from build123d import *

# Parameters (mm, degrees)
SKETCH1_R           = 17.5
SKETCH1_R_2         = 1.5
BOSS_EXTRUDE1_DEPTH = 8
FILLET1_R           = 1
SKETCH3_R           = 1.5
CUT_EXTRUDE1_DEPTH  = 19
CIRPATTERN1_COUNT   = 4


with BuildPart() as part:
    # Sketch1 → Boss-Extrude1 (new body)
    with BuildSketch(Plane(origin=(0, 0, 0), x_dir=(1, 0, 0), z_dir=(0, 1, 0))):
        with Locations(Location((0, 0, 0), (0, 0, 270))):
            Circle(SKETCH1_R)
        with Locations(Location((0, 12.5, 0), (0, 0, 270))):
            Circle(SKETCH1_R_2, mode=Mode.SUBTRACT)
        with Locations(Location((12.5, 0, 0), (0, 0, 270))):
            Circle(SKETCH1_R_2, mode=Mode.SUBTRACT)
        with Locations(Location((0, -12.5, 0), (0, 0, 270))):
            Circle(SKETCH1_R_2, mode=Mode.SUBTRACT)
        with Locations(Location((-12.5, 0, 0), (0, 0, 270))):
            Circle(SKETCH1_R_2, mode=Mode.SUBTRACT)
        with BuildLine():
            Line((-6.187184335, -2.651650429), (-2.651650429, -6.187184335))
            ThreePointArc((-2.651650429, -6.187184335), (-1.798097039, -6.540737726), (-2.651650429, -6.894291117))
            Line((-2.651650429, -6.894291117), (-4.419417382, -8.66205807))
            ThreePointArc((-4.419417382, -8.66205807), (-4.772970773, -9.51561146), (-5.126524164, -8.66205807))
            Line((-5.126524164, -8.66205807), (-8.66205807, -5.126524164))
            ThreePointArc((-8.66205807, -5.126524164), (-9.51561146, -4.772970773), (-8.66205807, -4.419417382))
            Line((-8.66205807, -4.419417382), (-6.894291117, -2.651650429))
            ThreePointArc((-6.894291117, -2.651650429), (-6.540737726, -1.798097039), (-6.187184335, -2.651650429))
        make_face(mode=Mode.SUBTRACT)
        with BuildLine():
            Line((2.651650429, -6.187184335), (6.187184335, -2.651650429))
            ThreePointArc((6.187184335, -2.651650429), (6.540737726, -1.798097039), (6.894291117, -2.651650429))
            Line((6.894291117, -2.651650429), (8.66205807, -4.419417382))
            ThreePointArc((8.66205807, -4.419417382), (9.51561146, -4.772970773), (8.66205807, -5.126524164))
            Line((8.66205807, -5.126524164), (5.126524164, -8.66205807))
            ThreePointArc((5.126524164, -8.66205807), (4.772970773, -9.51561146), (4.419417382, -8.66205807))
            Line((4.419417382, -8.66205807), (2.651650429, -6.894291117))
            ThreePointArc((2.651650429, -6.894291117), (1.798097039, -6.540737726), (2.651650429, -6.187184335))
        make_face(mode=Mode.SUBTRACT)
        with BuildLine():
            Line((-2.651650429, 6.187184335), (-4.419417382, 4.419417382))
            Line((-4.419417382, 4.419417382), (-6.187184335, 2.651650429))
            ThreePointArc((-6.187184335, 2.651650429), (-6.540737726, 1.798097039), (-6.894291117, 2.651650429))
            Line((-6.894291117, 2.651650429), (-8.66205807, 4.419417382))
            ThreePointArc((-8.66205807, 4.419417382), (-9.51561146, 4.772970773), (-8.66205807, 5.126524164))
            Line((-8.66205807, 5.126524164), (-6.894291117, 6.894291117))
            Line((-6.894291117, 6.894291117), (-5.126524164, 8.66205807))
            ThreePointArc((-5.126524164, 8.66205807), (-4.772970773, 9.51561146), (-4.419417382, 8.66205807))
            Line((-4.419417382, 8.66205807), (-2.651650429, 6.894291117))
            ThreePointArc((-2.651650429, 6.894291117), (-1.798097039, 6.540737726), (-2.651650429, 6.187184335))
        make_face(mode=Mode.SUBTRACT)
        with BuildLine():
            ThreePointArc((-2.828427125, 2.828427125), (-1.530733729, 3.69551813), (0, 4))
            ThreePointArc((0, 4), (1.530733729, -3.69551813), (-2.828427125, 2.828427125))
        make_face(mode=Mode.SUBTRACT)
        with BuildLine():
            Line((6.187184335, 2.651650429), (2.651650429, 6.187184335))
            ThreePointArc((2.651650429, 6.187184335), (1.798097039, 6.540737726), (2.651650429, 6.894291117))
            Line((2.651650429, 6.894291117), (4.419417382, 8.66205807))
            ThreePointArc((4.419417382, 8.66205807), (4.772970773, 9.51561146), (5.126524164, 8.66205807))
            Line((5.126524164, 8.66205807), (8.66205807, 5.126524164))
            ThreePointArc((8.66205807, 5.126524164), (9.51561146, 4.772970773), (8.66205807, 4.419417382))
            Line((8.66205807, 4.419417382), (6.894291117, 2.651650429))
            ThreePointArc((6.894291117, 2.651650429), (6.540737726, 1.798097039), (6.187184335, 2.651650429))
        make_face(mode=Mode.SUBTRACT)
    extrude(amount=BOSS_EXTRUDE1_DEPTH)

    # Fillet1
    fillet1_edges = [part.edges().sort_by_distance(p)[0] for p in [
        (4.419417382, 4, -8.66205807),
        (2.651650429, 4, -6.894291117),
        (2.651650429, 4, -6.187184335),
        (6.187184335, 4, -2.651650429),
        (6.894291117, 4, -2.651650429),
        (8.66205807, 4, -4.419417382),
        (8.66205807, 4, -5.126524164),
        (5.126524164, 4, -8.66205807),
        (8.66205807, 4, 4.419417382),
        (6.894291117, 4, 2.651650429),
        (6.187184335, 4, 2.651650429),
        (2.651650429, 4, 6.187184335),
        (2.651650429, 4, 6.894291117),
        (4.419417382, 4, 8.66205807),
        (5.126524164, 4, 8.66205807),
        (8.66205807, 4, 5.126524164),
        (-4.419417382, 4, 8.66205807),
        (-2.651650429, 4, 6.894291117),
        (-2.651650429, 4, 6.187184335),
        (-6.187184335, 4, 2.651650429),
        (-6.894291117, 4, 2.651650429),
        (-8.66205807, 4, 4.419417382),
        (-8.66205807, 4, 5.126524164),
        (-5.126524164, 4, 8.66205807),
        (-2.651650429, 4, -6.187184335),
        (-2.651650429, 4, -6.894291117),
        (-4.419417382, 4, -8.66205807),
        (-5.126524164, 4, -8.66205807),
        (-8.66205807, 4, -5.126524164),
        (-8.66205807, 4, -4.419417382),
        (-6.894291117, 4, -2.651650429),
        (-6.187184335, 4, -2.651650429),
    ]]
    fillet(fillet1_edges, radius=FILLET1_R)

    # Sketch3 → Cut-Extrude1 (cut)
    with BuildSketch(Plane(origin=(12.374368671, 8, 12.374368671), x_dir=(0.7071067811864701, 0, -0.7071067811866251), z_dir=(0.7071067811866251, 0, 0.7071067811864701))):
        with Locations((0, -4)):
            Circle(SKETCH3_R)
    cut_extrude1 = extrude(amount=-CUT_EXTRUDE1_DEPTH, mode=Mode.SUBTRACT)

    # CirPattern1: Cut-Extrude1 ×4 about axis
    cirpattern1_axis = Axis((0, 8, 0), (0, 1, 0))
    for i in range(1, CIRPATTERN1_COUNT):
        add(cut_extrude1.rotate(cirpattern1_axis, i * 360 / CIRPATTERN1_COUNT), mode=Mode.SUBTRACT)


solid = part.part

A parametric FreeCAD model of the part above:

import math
import FreeCAD as App
import Part
import Sketcher
from FreeCAD import Vector


def edges_at(feature, points):
    """Names of the edges that pass closest to the given points."""
    edges = feature.Shape.Edges
    near = lambda p: min(range(len(edges)), key=lambda i: edges[i].distToShape(Part.Vertex(*p))[0])
    return sorted({f"Edge{near(p) + 1}" for p in points})

doc = App.newDocument("Part")
params = doc.addObject("Spreadsheet::Sheet", "Params")
for row, (alias, value) in enumerate([
    ("sketch1_diameter", "35 mm"),
    ("sketch1_diameter2", "3 mm"),
    ("sketch1_radius", "4 mm"),
    ("sketch1_radius2", "0.5 mm"),
    ("sketch1_length", "5 mm"),
    ("pad1_length", "8 mm"),
    ("fillet_radius", "1 mm"),
    ("sketch2_diameter", "3 mm"),
    ("pocket1_length", "19 mm"),
], start=1):
    params.set(f"A{row}", alias)
    params.set(f"B{row}", "=" + value)
    params.setAlias(f"B{row}", alias)

body = doc.addObject("PartDesign::Body", "Body")

# Sketch on XZ plane
sketch1 = body.newObject("Sketcher::SketchObject", "Sketch")
sketch1.AttachmentSupport = (doc.getObject("XZ_Plane"), [""])
sketch1.MapMode = "FlatFace"
sketch1.addGeometry([
    Part.Circle(Vector(0, 0, 0), Vector(0, 0, 1), 17.5),  # 0
    Part.Circle(Vector(0, -12.5, 0), Vector(0, 0, 1), 1.5),  # 1
    Part.ArcOfCircle(Part.Circle(Vector(-2.3, -6.5, 0), Vector(0, 0, 1), 0.5), math.radians(-135), math.radians(135)),  # 2
    Part.LineSegment(Vector(-2.7, -6.2, 0), Vector(-6.2, -2.7, 0)),  # 3
    Part.ArcOfCircle(Part.Circle(Vector(-6.5, -2.3, 0), Vector(0, 0, 1), 0.5), math.radians(-45), math.radians(225)),  # 4
    Part.LineSegment(Vector(-6.9, -2.7, 0), Vector(-8.7, -4.4, 0)),  # 5
    Part.ArcOfCircle(Part.Circle(Vector(-9, -4.8, 0), Vector(0, 0, 1), 0.5), math.radians(45), math.radians(315)),  # 6
    Part.LineSegment(Vector(-8.7, -5.1, 0), Vector(-5.1, -8.7, 0)),  # 7
    Part.ArcOfCircle(Part.Circle(Vector(-4.8, -9, 0), Vector(0, 0, 1), 0.5), math.radians(135), math.radians(405)),  # 8
    Part.LineSegment(Vector(-4.4, -8.7, 0), Vector(-2.7, -6.9, 0)),  # 9
    Part.ArcOfCircle(Part.Circle(Vector(0, 0, 0), Vector(0, 0, 1), 4), math.radians(-90), math.radians(225)),  # 10
    Part.ArcOfCircle(Part.Circle(Vector(0, 0, 0), Vector(0, 0, 1), 4), math.radians(-135), math.radians(-90)),  # 11
    Part.Circle(Vector(-12.5, 0, 0), Vector(0, 0, 1), 1.5),  # 12
    Part.ArcOfCircle(Part.Circle(Vector(-6.5, 2.3, 0), Vector(0, 0, 1), 0.5), math.radians(135), math.radians(405)),  # 13
    Part.LineSegment(Vector(-6.2, 2.7, 0), Vector(-2.7, 6.2, 0)),  # 14
    Part.ArcOfCircle(Part.Circle(Vector(-2.3, 6.5, 0), Vector(0, 0, 1), 0.5), math.radians(-135), math.radians(135)),  # 15
    Part.LineSegment(Vector(-2.7, 6.9, 0), Vector(-4.4, 8.7, 0)),  # 16
    Part.ArcOfCircle(Part.Circle(Vector(-4.8, 9, 0), Vector(0, 0, 1), 0.5), math.radians(-45), math.radians(225)),  # 17
    Part.LineSegment(Vector(-5.1, 8.7, 0), Vector(-8.7, 5.1, 0)),  # 18
    Part.ArcOfCircle(Part.Circle(Vector(-9, 4.8, 0), Vector(0, 0, 1), 0.5), math.radians(45), math.radians(315)),  # 19
    Part.LineSegment(Vector(-8.7, 4.4, 0), Vector(-6.9, 2.7, 0)),  # 20
    Part.ArcOfCircle(Part.Circle(Vector(6.5, -2.3, 0), Vector(0, 0, 1), 0.5), math.radians(-45), math.radians(225)),  # 21
    Part.LineSegment(Vector(6.2, -2.7, 0), Vector(2.7, -6.2, 0)),  # 22
    Part.ArcOfCircle(Part.Circle(Vector(2.3, -6.5, 0), Vector(0, 0, 1), 0.5), math.radians(45), math.radians(315)),  # 23
    Part.LineSegment(Vector(2.7, -6.9, 0), Vector(4.4, -8.7, 0)),  # 24
    Part.ArcOfCircle(Part.Circle(Vector(4.8, -9, 0), Vector(0, 0, 1), 0.5), math.radians(135), math.radians(405)),  # 25
    Part.LineSegment(Vector(5.1, -8.7, 0), Vector(8.7, -5.1, 0)),  # 26
    Part.ArcOfCircle(Part.Circle(Vector(9, -4.8, 0), Vector(0, 0, 1), 0.5), math.radians(-135), math.radians(135)),  # 27
    Part.LineSegment(Vector(8.7, -4.4, 0), Vector(6.9, -2.7, 0)),  # 28
    Part.Circle(Vector(12.5, 0, 0), Vector(0, 0, 1), 1.5),  # 29
    Part.ArcOfCircle(Part.Circle(Vector(2.3, 6.5, 0), Vector(0, 0, 1), 0.5), math.radians(45), math.radians(315)),  # 30
    Part.LineSegment(Vector(2.7, 6.2, 0), Vector(6.2, 2.7, 0)),  # 31
    Part.ArcOfCircle(Part.Circle(Vector(6.5, 2.3, 0), Vector(0, 0, 1), 0.5), math.radians(135), math.radians(405)),  # 32
    Part.LineSegment(Vector(6.9, 2.7, 0), Vector(8.7, 4.4, 0)),  # 33
    Part.ArcOfCircle(Part.Circle(Vector(9, 4.8, 0), Vector(0, 0, 1), 0.5), math.radians(-135), math.radians(135)),  # 34
    Part.LineSegment(Vector(8.7, 5.1, 0), Vector(5.1, 8.7, 0)),  # 35
    Part.ArcOfCircle(Part.Circle(Vector(4.8, 9, 0), Vector(0, 0, 1), 0.5), math.radians(-45), math.radians(225)),  # 36
    Part.LineSegment(Vector(4.4, 8.7, 0), Vector(2.7, 6.9, 0)),  # 37
    Part.Circle(Vector(0, 12.5, 0), Vector(0, 0, 1), 1.5),  # 38
], False)
sketch1.addConstraint([
    Sketcher.Constraint("Coincident", 2, 2, 3, 1),
    Sketcher.Constraint("Coincident", 3, 2, 4, 1),
    Sketcher.Constraint("Coincident", 4, 2, 5, 1),
    Sketcher.Constraint("Coincident", 5, 2, 6, 1),
    Sketcher.Constraint("Coincident", 6, 2, 7, 1),
    Sketcher.Constraint("Coincident", 7, 2, 8, 1),
    Sketcher.Constraint("Coincident", 8, 2, 9, 1),
    Sketcher.Constraint("Coincident", 9, 2, 2, 1),
    Sketcher.Constraint("Tangent", 10, 1, 11, 2),
    Sketcher.Constraint("Coincident", 11, 1, 10, 2),
    Sketcher.Constraint("Coincident", 13, 2, 14, 1),
    Sketcher.Constraint("Coincident", 14, 2, 15, 1),
    Sketcher.Constraint("Coincident", 15, 2, 16, 1),
    Sketcher.Constraint("Coincident", 16, 2, 17, 1),
    Sketcher.Constraint("Coincident", 17, 2, 18, 1),
    Sketcher.Constraint("Coincident", 18, 2, 19, 1),
    Sketcher.Constraint("Coincident", 19, 2, 20, 1),
    Sketcher.Constraint("Coincident", 20, 2, 13, 1),
    Sketcher.Constraint("Coincident", 21, 2, 22, 1),
    Sketcher.Constraint("Coincident", 22, 2, 23, 1),
    Sketcher.Constraint("Coincident", 23, 2, 24, 1),
    Sketcher.Constraint("Coincident", 24, 2, 25, 1),
    Sketcher.Constraint("Coincident", 25, 2, 26, 1),
    Sketcher.Constraint("Coincident", 26, 2, 27, 1),
    Sketcher.Constraint("Coincident", 27, 2, 28, 1),
    Sketcher.Constraint("Coincident", 28, 2, 21, 1),
    Sketcher.Constraint("Coincident", 30, 2, 31, 1),
    Sketcher.Constraint("Coincident", 31, 2, 32, 1),
    Sketcher.Constraint("Coincident", 32, 2, 33, 1),
    Sketcher.Constraint("Coincident", 33, 2, 34, 1),
    Sketcher.Constraint("Coincident", 34, 2, 35, 1),
    Sketcher.Constraint("Coincident", 35, 2, 36, 1),
    Sketcher.Constraint("Coincident", 36, 2, 37, 1),
    Sketcher.Constraint("Coincident", 37, 2, 30, 1),
    Sketcher.Constraint("Coincident", 0, 3, -1, 1),
    Sketcher.Constraint("Coincident", 10, 3, -1, 1),
    Sketcher.Constraint("Equal", 2, 4),
    Sketcher.Constraint("Equal", 4, 6),
    Sketcher.Constraint("Equal", 6, 8),
    Sketcher.Constraint("Equal", 1, 12),
    Sketcher.Constraint("Equal", 8, 13),
    Sketcher.Constraint("Equal", 13, 15),
    Sketcher.Constraint("Equal", 15, 17),
    Sketcher.Constraint("Equal", 17, 19),
    Sketcher.Constraint("Equal", 19, 21),
    Sketcher.Constraint("Equal", 21, 23),
    Sketcher.Constraint("Equal", 23, 25),
    Sketcher.Constraint("Equal", 25, 27),
    Sketcher.Constraint("Equal", 12, 29),
    Sketcher.Constraint("Equal", 27, 30),
    Sketcher.Constraint("Equal", 30, 32),
    Sketcher.Constraint("Equal", 32, 34),
    Sketcher.Constraint("Equal", 34, 36),
    Sketcher.Constraint("Equal", 29, 38),
    Sketcher.Constraint("Symmetric", 13, 3, 21, 3, -1, 1),
    Sketcher.Constraint("Symmetric", 15, 3, 23, 3, -1, 1),
    Sketcher.Constraint("Symmetric", 17, 3, 25, 3, -1, 1),
    Sketcher.Constraint("Symmetric", 19, 3, 27, 3, -1, 1),
    Sketcher.Constraint("Symmetric", 12, 3, 29, 3, -1, 1),
    Sketcher.Constraint("Symmetric", 2, 3, 30, 3, -1, 1),
    Sketcher.Constraint("Symmetric", 4, 3, 32, 3, -1, 1),
    Sketcher.Constraint("Symmetric", 6, 3, 34, 3, -1, 1),
    Sketcher.Constraint("Symmetric", 8, 3, 36, 3, -1, 1),
    Sketcher.Constraint("Symmetric", 1, 3, 38, 3, -1, 1),
    Sketcher.Constraint("Symmetric", 4, 3, 21, 3, -2),
    Sketcher.Constraint("Symmetric", 2, 3, 23, 3, -2),
    Sketcher.Constraint("Symmetric", 8, 3, 25, 3, -2),
    Sketcher.Constraint("Symmetric", 6, 3, 27, 3, -2),
    Sketcher.Constraint("PointOnObject", 1, 3, -2),
    Sketcher.Constraint("PointOnObject", 12, 3, -1),
    Sketcher.Constraint("PointOnObject", 10, 1, -2),
    Sketcher.Constraint("Perpendicular", 3, 5),
    Sketcher.Constraint("Perpendicular", 5, 7),
    Sketcher.Constraint("Perpendicular", 7, 9),
    Sketcher.Constraint("Parallel", 9, 14),
    Sketcher.Constraint("Perpendicular", 14, 16),
    Sketcher.Constraint("Perpendicular", 16, 18),
    Sketcher.Constraint("Perpendicular", 18, 20),
    Sketcher.Constraint("Perpendicular", 20, 22),
    Sketcher.Constraint("Perpendicular", 22, 24),
    Sketcher.Constraint("Perpendicular", 24, 26),
    Sketcher.Constraint("Perpendicular", 26, 28),
    Sketcher.Constraint("Parallel", 28, 31),
    Sketcher.Constraint("Perpendicular", 31, 33),
    Sketcher.Constraint("Perpendicular", 33, 35),
    Sketcher.Constraint("Perpendicular", 35, 37),
    Sketcher.Constraint("Horizontal", 3, 2, 4, 2),
    Sketcher.Constraint("Horizontal", 7, 2, 8, 2),
    Sketcher.Constraint("Horizontal", 16, 2, 17, 2),
    Sketcher.Constraint("Horizontal", 13, 2, 20, 2),
    Sketcher.Constraint("Horizontal", 4, 2, 21, 2),
    Sketcher.Constraint("Horizontal", 2, 2, 22, 2),
    Sketcher.Constraint("Horizontal", 9, 2, 23, 2),
    Sketcher.Constraint("Horizontal", 24, 2, 25, 2),
    Sketcher.Constraint("Horizontal", 5, 2, 27, 2),
    Sketcher.Constraint("Horizontal", 14, 2, 30, 2),
    Sketcher.Constraint("Horizontal", 31, 2, 32, 2),
    Sketcher.Constraint("Horizontal", 18, 2, 34, 2),
    Sketcher.Constraint("Horizontal", 35, 2, 36, 2),
    Sketcher.Constraint("Vertical", 5, 2, 6, 2),
    Sketcher.Constraint("Vertical", 2, 2, 9, 2),
    Sketcher.Constraint("Vertical", 3, 2, 13, 2),
    Sketcher.Constraint("Vertical", 14, 2, 15, 2),
    Sketcher.Constraint("Equal", 3, 7),
    Sketcher.Constraint("Equal", 5, 9),
    Sketcher.Constraint("Diameter", 0, 35.0),
    Sketcher.Constraint("Diameter", 1, 3.0),
    Sketcher.Constraint("Radius", 10, 4.0),
    Sketcher.Constraint("Radius", 2, 0.5),
    Sketcher.Constraint("Distance", 3, 5.0),
    Sketcher.Constraint("Distance", 5, 2.5),
    Sketcher.Constraint("DistanceY", 1, 3, -1, 1, 12.5),
    Sketcher.Constraint("DistanceX", 12, 3, -1, 1, 12.5),
    Sketcher.Constraint("DistanceY", 3, 2, 13, 2, 5.303301),
    Sketcher.Constraint("DistanceX", 14, 2, 30, 2, 5.303301),
    Sketcher.Constraint("DistanceX", 6, 3, -1, 1, 9.015611),
    Sketcher.Constraint("DistanceY", 6, 3, -1, 1, 4.772971),
    Sketcher.Constraint("DistanceX", 11, 1, 2, 3, 0.53033),
])
sketch1.setExpression("Constraints[105]", "Params.sketch1_diameter")
sketch1.setExpression("Constraints[106]", "Params.sketch1_diameter2")
sketch1.setExpression("Constraints[107]", "Params.sketch1_radius")
sketch1.setExpression("Constraints[108]", "Params.sketch1_radius2")
sketch1.setExpression("Constraints[109]", "Params.sketch1_length")
pad1 = body.newObject("PartDesign::Pad", "Pad")
pad1.Profile = sketch1
pad1.setExpression("Length", "Params.pad1_length")
pad1.Reversed = True
doc.recompute()

fillet = body.newObject("PartDesign::Fillet", "Fillet")
fillet.Base = (pad1, edges_at(pad1, [
    (4.419, 4, -8.662),
    (2.652, 4, -6.894),
    (2.652, 4, -6.187),
    (6.187, 4, -2.652),
    (6.894, 4, -2.652),
    (8.662, 4, -4.419),
    (8.662, 4, -5.127),
    (5.127, 4, -8.662),
    (8.662, 4, 4.419),
    (6.894, 4, 2.652),
    (6.187, 4, 2.652),
    (2.652, 4, 6.187),
    (2.652, 4, 6.894),
    (4.419, 4, 8.662),
    (5.127, 4, 8.662),
    (8.662, 4, 5.127),
    (-4.419, 4, 8.662),
    (-2.652, 4, 6.894),
    (-2.652, 4, 6.187),
    (-6.187, 4, 2.652),
    (-6.894, 4, 2.652),
    (-8.662, 4, 4.419),
    (-8.662, 4, 5.127),
    (-5.127, 4, 8.662),
    (-2.652, 4, -6.187),
    (-2.652, 4, -6.894),
    (-4.419, 4, -8.662),
    (-5.127, 4, -8.662),
    (-8.662, 4, -5.127),
    (-8.662, 4, -4.419),
    (-6.894, 4, -2.652),
    (-6.187, 4, -2.652),
]))
fillet.setExpression("Radius", "Params.fillet_radius")

# Sketch on an angled plane
sketch2 = body.newObject("Sketcher::SketchObject", "Sketch001")
sketch2.Placement = App.Placement(Vector(12.374369, 8, 12.374369), App.Rotation(Vector(0.707106781, 0, -0.707106781), Vector(0, 0.999999999, 0), Vector(0.707106781, 0, 0.707106781), "ZXY"))
sketch2.addGeometry(Part.Circle(Vector(0, -4, 0), Vector(0, 0, 1), 1.5), False)
sketch2.addConstraint([
    Sketcher.Constraint("PointOnObject", 0, 3, -2),
    Sketcher.Constraint("Diameter", 0, 3.0),
    Sketcher.Constraint("DistanceY", 0, 3, -1, 1, 4.0),
])
sketch2.setExpression("Constraints[1]", "Params.sketch2_diameter")
pocket1 = body.newObject("PartDesign::Pocket", "Pocket")
pocket1.Profile = sketch2
pocket1.setExpression("Length", "Params.pocket1_length")
doc.recompute()

polarpattern = body.newObject("PartDesign::PolarPattern", "PolarPattern")
polarpattern.Originals = [pocket1]
polarpattern.Axis = (doc.getObject("Y_Axis"), [""])
polarpattern.Angle = 360
polarpattern.Occurrences = 4
body.Tip = polarpattern

doc.recompute()
